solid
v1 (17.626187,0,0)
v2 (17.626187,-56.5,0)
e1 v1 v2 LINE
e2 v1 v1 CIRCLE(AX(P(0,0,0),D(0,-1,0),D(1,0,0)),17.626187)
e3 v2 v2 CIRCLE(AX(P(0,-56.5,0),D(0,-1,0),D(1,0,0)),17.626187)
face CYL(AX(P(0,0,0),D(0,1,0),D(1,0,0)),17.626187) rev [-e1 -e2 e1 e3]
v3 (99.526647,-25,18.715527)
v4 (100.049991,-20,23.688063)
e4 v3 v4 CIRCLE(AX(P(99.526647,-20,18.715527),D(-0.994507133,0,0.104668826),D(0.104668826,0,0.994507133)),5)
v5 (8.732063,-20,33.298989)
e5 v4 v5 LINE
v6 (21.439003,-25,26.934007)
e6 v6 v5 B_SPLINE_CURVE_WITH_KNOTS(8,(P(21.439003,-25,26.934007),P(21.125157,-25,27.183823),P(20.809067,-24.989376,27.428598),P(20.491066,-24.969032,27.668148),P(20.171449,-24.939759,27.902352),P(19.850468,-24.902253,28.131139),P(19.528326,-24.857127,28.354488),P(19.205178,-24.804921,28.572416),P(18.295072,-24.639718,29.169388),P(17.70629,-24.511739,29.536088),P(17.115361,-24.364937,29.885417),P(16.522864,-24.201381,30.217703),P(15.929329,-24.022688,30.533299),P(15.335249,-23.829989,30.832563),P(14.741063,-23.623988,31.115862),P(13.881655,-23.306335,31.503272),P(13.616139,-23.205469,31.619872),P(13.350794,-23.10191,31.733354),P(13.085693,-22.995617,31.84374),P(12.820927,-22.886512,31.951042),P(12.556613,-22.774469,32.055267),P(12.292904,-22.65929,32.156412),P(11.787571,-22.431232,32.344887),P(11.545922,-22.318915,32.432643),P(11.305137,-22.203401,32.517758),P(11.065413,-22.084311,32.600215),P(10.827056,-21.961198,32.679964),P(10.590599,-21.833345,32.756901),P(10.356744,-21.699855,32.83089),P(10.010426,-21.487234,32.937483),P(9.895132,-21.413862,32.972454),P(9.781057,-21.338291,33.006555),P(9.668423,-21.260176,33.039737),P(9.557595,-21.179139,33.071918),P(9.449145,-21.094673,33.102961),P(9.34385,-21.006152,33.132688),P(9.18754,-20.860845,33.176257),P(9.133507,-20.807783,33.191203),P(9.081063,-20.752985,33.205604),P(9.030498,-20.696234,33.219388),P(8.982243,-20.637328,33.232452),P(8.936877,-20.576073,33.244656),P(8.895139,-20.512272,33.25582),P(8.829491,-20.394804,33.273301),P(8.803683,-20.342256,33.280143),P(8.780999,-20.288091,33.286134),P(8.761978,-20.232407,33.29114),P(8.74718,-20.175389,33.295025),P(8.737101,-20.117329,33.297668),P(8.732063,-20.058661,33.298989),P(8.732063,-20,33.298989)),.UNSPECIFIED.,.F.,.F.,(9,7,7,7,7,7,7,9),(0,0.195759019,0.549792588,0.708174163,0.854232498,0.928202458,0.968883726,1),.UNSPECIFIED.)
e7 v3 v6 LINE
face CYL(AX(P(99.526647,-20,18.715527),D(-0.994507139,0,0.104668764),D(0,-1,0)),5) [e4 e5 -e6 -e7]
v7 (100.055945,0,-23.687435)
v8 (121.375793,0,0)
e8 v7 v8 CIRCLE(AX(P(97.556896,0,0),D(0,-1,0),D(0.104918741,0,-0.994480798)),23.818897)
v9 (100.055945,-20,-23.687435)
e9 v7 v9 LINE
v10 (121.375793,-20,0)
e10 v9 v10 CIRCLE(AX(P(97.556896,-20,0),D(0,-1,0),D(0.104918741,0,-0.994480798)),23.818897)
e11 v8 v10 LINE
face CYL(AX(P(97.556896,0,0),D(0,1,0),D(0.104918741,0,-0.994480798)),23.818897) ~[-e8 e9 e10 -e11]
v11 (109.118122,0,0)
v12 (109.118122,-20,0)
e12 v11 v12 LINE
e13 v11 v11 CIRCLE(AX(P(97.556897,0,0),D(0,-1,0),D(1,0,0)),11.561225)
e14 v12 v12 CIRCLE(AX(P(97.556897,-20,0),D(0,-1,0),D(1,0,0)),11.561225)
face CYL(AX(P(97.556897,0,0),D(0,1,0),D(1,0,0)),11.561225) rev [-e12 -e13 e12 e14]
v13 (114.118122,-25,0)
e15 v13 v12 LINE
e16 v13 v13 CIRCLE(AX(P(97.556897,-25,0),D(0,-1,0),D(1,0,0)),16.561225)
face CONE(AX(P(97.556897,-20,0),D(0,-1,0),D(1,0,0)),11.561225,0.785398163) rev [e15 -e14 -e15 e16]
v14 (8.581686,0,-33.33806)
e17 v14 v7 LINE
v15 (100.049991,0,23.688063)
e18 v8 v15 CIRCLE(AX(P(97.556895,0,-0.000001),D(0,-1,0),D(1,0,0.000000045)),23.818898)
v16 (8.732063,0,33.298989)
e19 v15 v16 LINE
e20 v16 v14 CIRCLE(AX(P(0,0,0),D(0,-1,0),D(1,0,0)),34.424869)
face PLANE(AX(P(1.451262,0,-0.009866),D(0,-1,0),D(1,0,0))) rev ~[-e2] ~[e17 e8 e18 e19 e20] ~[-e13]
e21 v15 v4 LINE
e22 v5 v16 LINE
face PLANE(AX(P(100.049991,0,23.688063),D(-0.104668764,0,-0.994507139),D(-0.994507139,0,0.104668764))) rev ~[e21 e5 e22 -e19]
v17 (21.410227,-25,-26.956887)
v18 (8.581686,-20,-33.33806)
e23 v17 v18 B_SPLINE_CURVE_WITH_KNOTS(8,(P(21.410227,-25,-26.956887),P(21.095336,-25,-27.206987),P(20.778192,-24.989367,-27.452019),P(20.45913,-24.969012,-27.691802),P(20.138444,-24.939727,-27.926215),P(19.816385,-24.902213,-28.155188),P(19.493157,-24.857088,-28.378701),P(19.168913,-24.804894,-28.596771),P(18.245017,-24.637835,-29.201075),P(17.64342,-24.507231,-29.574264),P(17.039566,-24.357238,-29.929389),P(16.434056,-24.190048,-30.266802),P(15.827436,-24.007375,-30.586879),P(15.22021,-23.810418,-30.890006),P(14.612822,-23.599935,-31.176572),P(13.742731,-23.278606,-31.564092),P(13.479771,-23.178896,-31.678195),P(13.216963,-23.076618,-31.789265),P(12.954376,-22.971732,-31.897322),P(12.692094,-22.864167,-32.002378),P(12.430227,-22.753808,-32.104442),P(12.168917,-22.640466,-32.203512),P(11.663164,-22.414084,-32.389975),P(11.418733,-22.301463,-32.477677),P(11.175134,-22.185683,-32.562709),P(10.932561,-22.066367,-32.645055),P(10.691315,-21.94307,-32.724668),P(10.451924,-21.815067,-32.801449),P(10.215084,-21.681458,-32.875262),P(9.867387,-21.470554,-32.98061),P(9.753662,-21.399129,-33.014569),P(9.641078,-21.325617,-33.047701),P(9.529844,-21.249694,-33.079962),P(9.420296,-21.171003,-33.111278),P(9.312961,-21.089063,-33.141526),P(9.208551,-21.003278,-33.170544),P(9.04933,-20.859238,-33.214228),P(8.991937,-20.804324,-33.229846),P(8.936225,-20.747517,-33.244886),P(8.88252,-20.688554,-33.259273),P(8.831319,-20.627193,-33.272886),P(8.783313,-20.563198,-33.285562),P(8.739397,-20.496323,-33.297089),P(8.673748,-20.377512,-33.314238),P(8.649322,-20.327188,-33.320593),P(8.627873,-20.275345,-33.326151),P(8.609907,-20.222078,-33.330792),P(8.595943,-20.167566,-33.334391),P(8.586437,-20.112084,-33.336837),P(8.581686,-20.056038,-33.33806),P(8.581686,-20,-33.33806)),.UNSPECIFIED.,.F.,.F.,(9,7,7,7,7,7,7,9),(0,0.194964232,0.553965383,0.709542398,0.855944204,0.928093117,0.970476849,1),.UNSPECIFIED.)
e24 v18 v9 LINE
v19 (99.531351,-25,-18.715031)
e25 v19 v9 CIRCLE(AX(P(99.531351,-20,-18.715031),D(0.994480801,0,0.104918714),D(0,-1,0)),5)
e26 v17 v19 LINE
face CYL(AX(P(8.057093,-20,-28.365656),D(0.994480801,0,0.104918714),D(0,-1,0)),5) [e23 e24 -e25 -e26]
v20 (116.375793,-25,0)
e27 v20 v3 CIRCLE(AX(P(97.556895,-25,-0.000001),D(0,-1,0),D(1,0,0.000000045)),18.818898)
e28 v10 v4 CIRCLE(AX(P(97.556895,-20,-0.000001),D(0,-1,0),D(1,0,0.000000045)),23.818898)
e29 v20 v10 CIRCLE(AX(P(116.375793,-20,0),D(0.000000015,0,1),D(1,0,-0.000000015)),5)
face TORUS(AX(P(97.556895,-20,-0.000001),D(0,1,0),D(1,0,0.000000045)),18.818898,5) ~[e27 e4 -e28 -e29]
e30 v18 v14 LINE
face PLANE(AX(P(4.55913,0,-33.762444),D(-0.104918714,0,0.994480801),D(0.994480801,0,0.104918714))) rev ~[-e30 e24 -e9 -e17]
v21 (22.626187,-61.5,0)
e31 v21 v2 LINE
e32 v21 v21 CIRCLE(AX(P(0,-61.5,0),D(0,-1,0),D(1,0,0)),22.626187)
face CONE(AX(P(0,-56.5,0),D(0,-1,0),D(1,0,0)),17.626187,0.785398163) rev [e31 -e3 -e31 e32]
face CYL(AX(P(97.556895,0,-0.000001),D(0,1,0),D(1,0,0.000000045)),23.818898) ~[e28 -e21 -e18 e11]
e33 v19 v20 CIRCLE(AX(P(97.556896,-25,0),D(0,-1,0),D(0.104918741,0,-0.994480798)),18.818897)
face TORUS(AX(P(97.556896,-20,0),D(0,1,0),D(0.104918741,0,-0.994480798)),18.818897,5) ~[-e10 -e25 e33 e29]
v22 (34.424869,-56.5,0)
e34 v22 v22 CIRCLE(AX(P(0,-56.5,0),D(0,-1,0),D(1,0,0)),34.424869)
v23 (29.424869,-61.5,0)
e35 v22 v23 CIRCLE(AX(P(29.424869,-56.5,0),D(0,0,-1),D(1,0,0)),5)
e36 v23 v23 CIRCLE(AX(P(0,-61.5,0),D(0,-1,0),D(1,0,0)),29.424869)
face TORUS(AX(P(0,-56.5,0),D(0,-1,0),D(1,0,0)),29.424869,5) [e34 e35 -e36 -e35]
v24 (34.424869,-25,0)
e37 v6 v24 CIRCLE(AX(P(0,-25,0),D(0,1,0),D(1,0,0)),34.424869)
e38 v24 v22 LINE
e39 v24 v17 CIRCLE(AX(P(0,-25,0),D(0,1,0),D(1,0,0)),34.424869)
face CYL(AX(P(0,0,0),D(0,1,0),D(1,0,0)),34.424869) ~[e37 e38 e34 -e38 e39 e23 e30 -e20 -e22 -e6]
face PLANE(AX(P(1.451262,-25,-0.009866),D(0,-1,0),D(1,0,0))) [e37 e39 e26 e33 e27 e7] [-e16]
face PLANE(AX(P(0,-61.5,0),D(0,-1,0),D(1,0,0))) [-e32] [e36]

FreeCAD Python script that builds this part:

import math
import FreeCAD as App
import Part
import Sketcher


def edges_at(feature, points):
    """Names of the edges that pass closest to the given points."""
    edges = feature.Shape.Edges
    near = lambda p: min(range(len(edges)), key=lambda i: edges[i].distToShape(Part.Vertex(*p))[0])
    return sorted({f"Edge{near(p) + 1}" for p in points})

doc = App.newDocument("Part")
body = doc.addObject("PartDesign::Body", "Body")

# Sketch on XZ plane
sketch1 = body.newObject("Sketcher::SketchObject", "Sketch")
sketch1.AttachmentSupport = (doc.getObject("XZ_Plane"), [""])
sketch1.MapMode = "FlatFace"
sketch1.addGeometry(Part.ArcOfCircle(Part.Circle(App.Vector(0, 0, 0), App.Vector(0, 0, 1), 34), math.radians(81), math.radians(278)), False)
sketch1.addGeometry(Part.LineSegment(App.Vector(5, -34, 0), App.Vector(100, -24, 0)), False)
sketch1.addGeometry(Part.ArcOfCircle(Part.Circle(App.Vector(98, 0, 0), App.Vector(0, 0, 1), 24), math.radians(-84), math.radians(0)), False)
sketch1.addGeometry(Part.ArcOfCircle(Part.Circle(App.Vector(98, 0, 0), App.Vector(0, 0, 1), 24), math.radians(0), math.radians(84)), False)
sketch1.addGeometry(Part.LineSegment(App.Vector(100, 24, 0), App.Vector(5, 34, 0)), False)
sketch1.addGeometry(Part.Circle(App.Vector(0, 0, 0), App.Vector(0, 0, 1), 18), False)
sketch1.addGeometry(Part.Circle(App.Vector(98, 0, 0), App.Vector(0, 0, 1), 12), False)
sketch1.addConstraint(Sketcher.Constraint("Coincident", 0, 2, 1, 1))
sketch1.addConstraint(Sketcher.Constraint("Tangent", 1, 2, 2, 1))
sketch1.addConstraint(Sketcher.Constraint("Tangent", 2, 2, 3, 1))
sketch1.addConstraint(Sketcher.Constraint("Tangent", 3, 2, 4, 1))
sketch1.addConstraint(Sketcher.Constraint("Coincident", 4, 2, 0, 1))
sketch1.addConstraint(Sketcher.Constraint("Coincident", 0, 3, -1, 1))
sketch1.addConstraint(Sketcher.Constraint("Coincident", 5, 3, -1, 1))
sketch1.addConstraint(Sketcher.Constraint("Coincident", 6, 3, 2, 3))
sketch1.addConstraint(Sketcher.Constraint("Equal", 2, 3))
sketch1.addConstraint(Sketcher.Constraint("PointOnObject", 2, 3, -1))
sketch1.addConstraint(Sketcher.Constraint("PointOnObject", 2, 2, -1))
sketch1.addConstraint(Sketcher.Constraint("Radius", 3, 23.818898))
sketch1.addConstraint(Sketcher.Constraint("Diameter", 6, 23.12245))
sketch1.addConstraint(Sketcher.Constraint("Diameter", 5, 35.837476))
sketch1.addConstraint(Sketcher.Constraint("Radius", 0, 34.068876))
sketch1.addConstraint(Sketcher.Constraint("DistanceX", -1, 1, 0, 2, 4.55913))
sketch1.addConstraint(Sketcher.Constraint("DistanceX", -1, 1, 3, 2, 100.049991))
sketch1.addConstraint(Sketcher.Constraint("DistanceY", 0, 3, 4, 2, 33.672952))
pad1 = body.newObject("PartDesign::Pad", "Pad")
pad1.Profile = sketch1
pad1.Length = 25

# Sketch on XZ plane
sketch2 = body.newObject("Sketcher::SketchObject", "Sketch001")
sketch2.AttachmentSupport = (doc.getObject("XZ_Plane"), [""])
sketch2.MapMode = "FlatFace"
sketch2.addGeometry(Part.Circle(App.Vector(0, 0, 0), App.Vector(0, 0, 1), 34), False)
sketch2.addGeometry(Part.Circle(App.Vector(0, 0, 0), App.Vector(0, 0, 1), 18), False)
sketch2.addConstraint(Sketcher.Constraint("Coincident", 0, 3, -1, 1))
sketch2.addConstraint(Sketcher.Constraint("Coincident", 1, 3, -1, 1))
sketch2.addConstraint(Sketcher.Constraint("Diameter", 0, 68.849738))
sketch2.addConstraint(Sketcher.Constraint("Diameter", 1, 35.252374))
pad2 = body.newObject("PartDesign::Pad", "Pad001")
pad2.Profile = sketch2
pad2.Length = 61.5
doc.recompute()

fillet = body.newObject("PartDesign::Fillet", "Fillet")
fillet.Base = (pad2, edges_at(pad2, [(-34.425, -61.5, 0)]))
fillet.Radius = 5
doc.recompute()

chamfer = body.newObject("PartDesign::Chamfer", "Chamfer")
chamfer.Base = (fillet, edges_at(fillet, [(-17.626, -61.5, 0)]))
chamfer.Size = 5
doc.recompute()

chamfer2 = body.newObject("PartDesign::Chamfer", "Chamfer001")
chamfer2.Base = (chamfer, edges_at(chamfer, [(85.996, -25, 0)]))
chamfer2.Size = 5
doc.recompute()

fillet2 = body.newObject("PartDesign::Fillet", "Fillet001")
fillet2.Base = (chamfer2, edges_at(chamfer2, [(54.319, -25, -28.513)]))
fillet2.Radius = 5

doc.recompute()
